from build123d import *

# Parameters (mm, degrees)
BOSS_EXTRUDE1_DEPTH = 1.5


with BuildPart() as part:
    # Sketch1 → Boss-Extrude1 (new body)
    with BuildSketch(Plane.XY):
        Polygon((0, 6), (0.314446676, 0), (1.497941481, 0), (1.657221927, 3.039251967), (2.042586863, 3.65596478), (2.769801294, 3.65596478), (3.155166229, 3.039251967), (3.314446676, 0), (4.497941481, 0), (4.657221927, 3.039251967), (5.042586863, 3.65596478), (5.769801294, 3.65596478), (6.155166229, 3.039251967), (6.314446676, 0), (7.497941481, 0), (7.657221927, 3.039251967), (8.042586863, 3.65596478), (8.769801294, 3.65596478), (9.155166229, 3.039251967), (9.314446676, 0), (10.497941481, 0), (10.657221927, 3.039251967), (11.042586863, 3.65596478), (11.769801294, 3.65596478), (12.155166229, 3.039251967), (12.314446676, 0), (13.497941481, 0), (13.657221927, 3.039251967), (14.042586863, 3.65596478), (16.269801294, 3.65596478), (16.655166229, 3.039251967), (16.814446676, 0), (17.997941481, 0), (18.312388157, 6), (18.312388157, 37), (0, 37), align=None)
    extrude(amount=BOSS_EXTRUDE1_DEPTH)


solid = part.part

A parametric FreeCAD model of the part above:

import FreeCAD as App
import Part
import Sketcher

V = App.Vector
Q = App.Units.Quantity


def add_polygon(sketch, points):
    """Adds a closed chain of lines whose ends are joined by coincident constraints."""
    first, n = sketch.GeometryCount, len(points)
    for a, b in zip(points, points[1:] + points[:1]):
        sketch.addGeometry(Part.LineSegment(App.Vector(*a, 0), App.Vector(*b, 0)), False)
    for i in range(n):
        sketch.addConstraint(Sketcher.Constraint("Coincident", first + i, 2, first + (i + 1) % n, 1))

doc = App.newDocument("Part")
body = doc.addObject("PartDesign::Body", "Body")

sketch1 = body.newObject("Sketcher::SketchObject", "Sketch")
sketch1.AttachmentSupport = (doc.getObject("XY_Plane"), [""])
sketch1.MapMode = "FlatFace"
add_polygon(sketch1, [(0, 6), (0.3, 0), (1.5, 0), (1.7, 3), (2, 3.7), (2.8, 3.7), (3.2, 3), (3.3, 0), (4.5, 0), (4.7, 3), (5, 3.7), (5.8, 3.7), (6.2, 3), (6.3, 0), (7.5, 0), (7.7, 3), (8, 3.7), (8.8, 3.7), (9.2, 3), (9.3, 0), (10.5, 0), (10.7, 3), (11, 3.7), (11.8, 3.7), (12.2, 3), (12.3, 0), (13.5, 0), (13.7, 3), (14, 3.7), (16.3, 3.7), (16.7, 3), (16.8, 0), (18, 0), (18.3, 6), (18.3, 37), (0, 37)])
sketch1.addConstraint([
    Sketcher.Constraint("Horizontal", 1),
    Sketcher.Constraint("Horizontal", 4),
    Sketcher.Constraint("Horizontal", 7),
    Sketcher.Constraint("Horizontal", 10),
    Sketcher.Constraint("Horizontal", 13),
    Sketcher.Constraint("Horizontal", 16),
    Sketcher.Constraint("Horizontal", 19),
    Sketcher.Constraint("Horizontal", 22),
    Sketcher.Constraint("Horizontal", 25),
    Sketcher.Constraint("Horizontal", 28),
    Sketcher.Constraint("Horizontal", 31),
    Sketcher.Constraint("Vertical", 33),
    Sketcher.Constraint("Horizontal", 34),
    Sketcher.Constraint("Vertical", 35),
    Sketcher.Constraint("PointOnObject", 0, 2, -1),
    Sketcher.Constraint("PointOnObject", 6, 2, -1),
    Sketcher.Constraint("PointOnObject", 12, 2, -1),
    Sketcher.Constraint("PointOnObject", 18, 2, -1),
    Sketcher.Constraint("PointOnObject", 24, 2, -1),
    Sketcher.Constraint("PointOnObject", 30, 2, -1),
    Sketcher.Constraint("PointOnObject", 34, 2, -2),
    Sketcher.Constraint("Parallel", 0, 6),
    Sketcher.Constraint("Parallel", 2, 8),
    Sketcher.Constraint("Parallel", 3, 9),
    Sketcher.Constraint("Parallel", 5, 11),
    Sketcher.Constraint("Parallel", 6, 12),
    Sketcher.Constraint("Parallel", 8, 14),
    Sketcher.Constraint("Parallel", 9, 15),
    Sketcher.Constraint("Parallel", 11, 17),
    Sketcher.Constraint("Parallel", 12, 18),
    Sketcher.Constraint("Parallel", 14, 20),
    Sketcher.Constraint("Parallel", 15, 21),
    Sketcher.Constraint("Parallel", 17, 23),
    Sketcher.Constraint("Parallel", 18, 24),
    Sketcher.Constraint("Parallel", 20, 26),
    Sketcher.Constraint("Parallel", 21, 27),
    Sketcher.Constraint("Parallel", 23, 29),
    Sketcher.Constraint("Parallel", 24, 30),
    Sketcher.Constraint("Parallel", 26, 32),
    Sketcher.Constraint("Horizontal", 2, 2, 5, 2),
    Sketcher.Constraint("Horizontal", 5, 2, 8, 2),
    Sketcher.Constraint("Horizontal", 4, 2, 9, 2),
    Sketcher.Constraint("Horizontal", 8, 2, 11, 2),
    Sketcher.Constraint("Horizontal", 11, 2, 14, 2),
    Sketcher.Constraint("Horizontal", 10, 2, 15, 2),
    Sketcher.Constraint("Horizontal", 14, 2, 17, 2),
    Sketcher.Constraint("Horizontal", 17, 2, 20, 2),
    Sketcher.Constraint("Horizontal", 16, 2, 21, 2),
    Sketcher.Constraint("Horizontal", 20, 2, 23, 2),
    Sketcher.Constraint("Horizontal", 23, 2, 26, 2),
    Sketcher.Constraint("Horizontal", 22, 2, 27, 2),
    Sketcher.Constraint("Horizontal", 26, 2, 29, 2),
    Sketcher.Constraint("Horizontal", 32, 2, 35, 2),
    Sketcher.Constraint("Equal", 1, 7),
    Sketcher.Constraint("Equal", 4, 10),
    Sketcher.Constraint("Equal", 7, 13),
    Sketcher.Constraint("Equal", 10, 16),
    Sketcher.Constraint("Equal", 13, 19),
    Sketcher.Constraint("Equal", 16, 22),
    Sketcher.Constraint("Equal", 19, 25),
    Sketcher.Constraint("Equal", 25, 31),
    Sketcher.Constraint("Equal", 3, 5),
    Sketcher.Constraint("Equal", 2, 6),
    Sketcher.Constraint("DistanceY", 33, 1, 33, 2, 31.0),
    Sketcher.Constraint("Angle", 0, Q("-87 deg")),
    Sketcher.Constraint("Angle", 3, Q("58 deg")),
    Sketcher.Constraint("DistanceY", -1, 1, 32, 2, 6.0),
    Sketcher.Constraint("DistanceX", 0, 2, 6, 2, 3.0),
    Sketcher.Constraint("DistanceX", 22, 2, 28, 2, 4.5),
    Sketcher.Constraint("DistanceX", 34, 2, 34, 1, 18.312388),
    Sketcher.Constraint("DistanceX", -1, 1, 4, 2, 2.769801),
    Sketcher.Constraint("DistanceX", -1, 1, 2, 2, 1.657222),
])
pad1 = body.newObject("PartDesign::Pad", "Pad")
pad1.Profile = sketch1
pad1.Length = 1.5

doc.recompute()
